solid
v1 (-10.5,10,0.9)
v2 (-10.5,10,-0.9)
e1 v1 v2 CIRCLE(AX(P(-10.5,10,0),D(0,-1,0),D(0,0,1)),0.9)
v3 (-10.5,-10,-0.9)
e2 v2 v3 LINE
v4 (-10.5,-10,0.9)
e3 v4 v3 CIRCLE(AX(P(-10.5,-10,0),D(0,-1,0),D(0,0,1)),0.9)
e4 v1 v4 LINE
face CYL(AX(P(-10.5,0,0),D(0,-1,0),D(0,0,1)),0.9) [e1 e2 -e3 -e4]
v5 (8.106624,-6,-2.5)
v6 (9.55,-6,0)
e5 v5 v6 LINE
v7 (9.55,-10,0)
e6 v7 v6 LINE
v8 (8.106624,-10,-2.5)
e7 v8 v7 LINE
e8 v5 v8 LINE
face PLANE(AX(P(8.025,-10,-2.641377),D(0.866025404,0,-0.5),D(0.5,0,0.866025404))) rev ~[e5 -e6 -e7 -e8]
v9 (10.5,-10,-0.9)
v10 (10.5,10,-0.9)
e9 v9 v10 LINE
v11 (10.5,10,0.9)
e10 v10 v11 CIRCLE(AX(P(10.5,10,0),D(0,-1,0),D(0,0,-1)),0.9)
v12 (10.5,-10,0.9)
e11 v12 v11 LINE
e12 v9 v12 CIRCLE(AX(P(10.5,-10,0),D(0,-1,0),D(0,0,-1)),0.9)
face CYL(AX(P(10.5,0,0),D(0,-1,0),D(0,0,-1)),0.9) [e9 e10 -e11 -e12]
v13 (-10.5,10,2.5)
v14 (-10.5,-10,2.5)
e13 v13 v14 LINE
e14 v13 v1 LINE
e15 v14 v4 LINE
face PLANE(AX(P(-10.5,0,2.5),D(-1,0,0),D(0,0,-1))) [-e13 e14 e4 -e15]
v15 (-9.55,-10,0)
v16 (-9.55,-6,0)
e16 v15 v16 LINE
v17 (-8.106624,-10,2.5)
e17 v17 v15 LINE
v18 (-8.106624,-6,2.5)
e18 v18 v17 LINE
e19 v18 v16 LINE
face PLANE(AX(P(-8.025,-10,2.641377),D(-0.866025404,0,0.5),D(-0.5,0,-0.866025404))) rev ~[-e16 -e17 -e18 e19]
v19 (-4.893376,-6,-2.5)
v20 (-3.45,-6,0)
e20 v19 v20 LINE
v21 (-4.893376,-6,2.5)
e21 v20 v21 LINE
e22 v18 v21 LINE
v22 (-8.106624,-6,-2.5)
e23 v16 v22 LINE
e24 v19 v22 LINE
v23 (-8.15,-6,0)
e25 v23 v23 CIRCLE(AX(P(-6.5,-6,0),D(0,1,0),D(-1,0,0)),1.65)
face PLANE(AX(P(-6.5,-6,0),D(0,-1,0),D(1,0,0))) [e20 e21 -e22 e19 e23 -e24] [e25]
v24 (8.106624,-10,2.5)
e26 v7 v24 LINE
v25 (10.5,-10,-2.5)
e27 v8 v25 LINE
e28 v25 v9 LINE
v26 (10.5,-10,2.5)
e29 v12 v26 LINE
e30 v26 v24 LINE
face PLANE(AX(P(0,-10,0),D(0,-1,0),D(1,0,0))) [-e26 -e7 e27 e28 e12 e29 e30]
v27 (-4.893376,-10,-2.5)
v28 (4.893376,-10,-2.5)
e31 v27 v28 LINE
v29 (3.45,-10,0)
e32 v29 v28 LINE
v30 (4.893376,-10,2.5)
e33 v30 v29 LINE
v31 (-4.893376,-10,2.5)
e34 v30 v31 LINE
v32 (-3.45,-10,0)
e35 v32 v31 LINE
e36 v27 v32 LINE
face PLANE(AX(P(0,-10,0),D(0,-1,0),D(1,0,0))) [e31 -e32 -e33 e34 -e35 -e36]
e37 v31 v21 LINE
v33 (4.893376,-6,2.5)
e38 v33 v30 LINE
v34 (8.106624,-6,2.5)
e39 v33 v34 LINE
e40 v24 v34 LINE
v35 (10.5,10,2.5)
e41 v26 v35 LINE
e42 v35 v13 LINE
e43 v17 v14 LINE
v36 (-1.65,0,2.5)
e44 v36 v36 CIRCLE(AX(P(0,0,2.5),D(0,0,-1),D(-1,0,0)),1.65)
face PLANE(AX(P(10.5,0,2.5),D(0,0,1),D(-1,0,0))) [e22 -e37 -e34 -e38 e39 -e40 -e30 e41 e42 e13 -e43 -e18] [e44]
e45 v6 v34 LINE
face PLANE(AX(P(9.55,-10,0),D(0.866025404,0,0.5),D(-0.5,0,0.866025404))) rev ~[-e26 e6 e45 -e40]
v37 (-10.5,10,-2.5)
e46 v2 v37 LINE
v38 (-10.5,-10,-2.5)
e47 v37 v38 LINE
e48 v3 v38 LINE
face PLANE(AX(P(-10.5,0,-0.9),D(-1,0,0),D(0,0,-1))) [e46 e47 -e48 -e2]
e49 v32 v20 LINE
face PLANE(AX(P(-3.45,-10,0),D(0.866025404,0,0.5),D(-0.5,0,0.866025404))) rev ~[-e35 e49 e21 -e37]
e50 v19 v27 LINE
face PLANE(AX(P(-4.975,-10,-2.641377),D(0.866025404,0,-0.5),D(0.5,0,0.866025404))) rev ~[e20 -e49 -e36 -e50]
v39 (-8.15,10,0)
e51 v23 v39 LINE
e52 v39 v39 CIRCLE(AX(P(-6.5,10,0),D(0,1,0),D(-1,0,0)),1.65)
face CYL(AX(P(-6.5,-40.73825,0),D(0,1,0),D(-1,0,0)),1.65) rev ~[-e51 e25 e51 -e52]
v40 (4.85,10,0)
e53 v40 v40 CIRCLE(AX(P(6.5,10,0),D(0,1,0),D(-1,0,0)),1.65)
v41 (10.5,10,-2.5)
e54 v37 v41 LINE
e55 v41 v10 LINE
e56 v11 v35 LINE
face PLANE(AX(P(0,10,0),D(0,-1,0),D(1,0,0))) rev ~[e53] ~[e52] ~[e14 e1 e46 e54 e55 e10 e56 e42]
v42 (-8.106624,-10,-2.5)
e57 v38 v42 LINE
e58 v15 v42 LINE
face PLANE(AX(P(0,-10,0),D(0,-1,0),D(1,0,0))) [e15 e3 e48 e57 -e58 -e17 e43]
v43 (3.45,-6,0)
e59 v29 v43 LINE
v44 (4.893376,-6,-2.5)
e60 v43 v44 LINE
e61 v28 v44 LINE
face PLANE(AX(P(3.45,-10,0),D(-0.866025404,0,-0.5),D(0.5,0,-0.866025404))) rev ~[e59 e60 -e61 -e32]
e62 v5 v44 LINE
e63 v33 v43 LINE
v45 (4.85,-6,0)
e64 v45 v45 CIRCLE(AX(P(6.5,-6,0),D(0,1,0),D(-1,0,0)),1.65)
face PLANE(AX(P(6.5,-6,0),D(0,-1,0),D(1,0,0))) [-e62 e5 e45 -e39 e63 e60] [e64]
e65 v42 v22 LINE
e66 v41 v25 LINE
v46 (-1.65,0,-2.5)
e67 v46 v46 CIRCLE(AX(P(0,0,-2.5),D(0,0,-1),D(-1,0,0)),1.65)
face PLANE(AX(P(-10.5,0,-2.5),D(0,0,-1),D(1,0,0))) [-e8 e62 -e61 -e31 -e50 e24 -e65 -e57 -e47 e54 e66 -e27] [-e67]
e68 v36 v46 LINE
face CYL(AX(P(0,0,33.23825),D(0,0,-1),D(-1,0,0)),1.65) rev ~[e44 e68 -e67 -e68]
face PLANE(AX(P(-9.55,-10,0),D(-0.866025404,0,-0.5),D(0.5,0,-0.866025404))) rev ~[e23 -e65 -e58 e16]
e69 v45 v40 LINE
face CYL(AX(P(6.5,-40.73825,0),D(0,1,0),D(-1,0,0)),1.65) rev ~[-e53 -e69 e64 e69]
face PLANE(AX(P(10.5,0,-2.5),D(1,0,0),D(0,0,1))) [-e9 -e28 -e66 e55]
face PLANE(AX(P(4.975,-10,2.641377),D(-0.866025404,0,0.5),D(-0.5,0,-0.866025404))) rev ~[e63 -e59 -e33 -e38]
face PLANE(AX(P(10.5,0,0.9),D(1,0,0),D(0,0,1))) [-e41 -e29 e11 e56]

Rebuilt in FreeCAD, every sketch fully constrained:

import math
import FreeCAD as App
import Part
import Sketcher
from FreeCAD import Vector
Q = App.Units.Quantity

doc = App.newDocument("Part")
body = doc.addObject("PartDesign::Body", "Body")

# Sketch on XZ plane
sketch1 = doc.addObject("Sketcher::SketchObject", "Sketch")
body.addObject(sketch1)
sketch1.AttachmentSupport = (doc.XZ_Plane, [""])
sketch1.MapMode = "FlatFace"
sketch1.addGeometry(Part.LineSegment(Vector(10.5, 2.5, 0), Vector(-10.5, 2.5, 0)), False)
sketch1.addGeometry(Part.LineSegment(Vector(-10.5, 2.5, 0), Vector(-10.5, 0.9, 0)), False)
sketch1.addGeometry(Part.ArcOfCircle(Part.Circle(Vector(-10.5, 0, 0), Vector(0, 0, 1), 0.9), math.radians(90), math.radians(270)), False)
sketch1.addGeometry(Part.LineSegment(Vector(-10.5, -0.9, 0), Vector(-10.5, -2.5, 0)), False)
sketch1.addGeometry(Part.LineSegment(Vector(-10.5, -2.5, 0), Vector(10.5, -2.5, 0)), False)
sketch1.addGeometry(Part.LineSegment(Vector(10.5, -2.5, 0), Vector(10.5, -0.9, 0)), False)
sketch1.addGeometry(Part.ArcOfCircle(Part.Circle(Vector(10.5, 0, 0), Vector(0, 0, 1), 0.9), math.radians(-90), math.radians(90)), False)
sketch1.addGeometry(Part.LineSegment(Vector(10.5, 0.9, 0), Vector(10.5, 2.5, 0)), False)
sketch1.addConstraint(Sketcher.Constraint("Coincident", 0, 2, 1, 1))
sketch1.addConstraint(Sketcher.Constraint("Coincident", 1, 2, 2, 1))
sketch1.addConstraint(Sketcher.Constraint("Coincident", 2, 2, 3, 1))
sketch1.addConstraint(Sketcher.Constraint("Coincident", 3, 2, 4, 1))
sketch1.addConstraint(Sketcher.Constraint("Coincident", 4, 2, 5, 1))
sketch1.addConstraint(Sketcher.Constraint("Coincident", 5, 2, 6, 1))
sketch1.addConstraint(Sketcher.Constraint("Coincident", 6, 2, 7, 1))
sketch1.addConstraint(Sketcher.Constraint("Coincident", 7, 2, 0, 1))
sketch1.addConstraint(Sketcher.Constraint("Horizontal", 0))
sketch1.addConstraint(Sketcher.Constraint("Vertical", 1))
sketch1.addConstraint(Sketcher.Constraint("Vertical", 3))
sketch1.addConstraint(Sketcher.Constraint("Horizontal", 4))
sketch1.addConstraint(Sketcher.Constraint("Vertical", 5))
sketch1.addConstraint(Sketcher.Constraint("Vertical", 7))
sketch1.addConstraint(Sketcher.Constraint("Equal", 2, 6))
sketch1.addConstraint(Sketcher.Constraint("Symmetric", 2, 3, 6, 3, -1, 1))
sketch1.addConstraint(Sketcher.Constraint("Symmetric", 0, 2, 4, 2, -1, 1))
sketch1.addConstraint(Sketcher.Constraint("Symmetric", 2, 2, 5, 2, -2))
sketch1.addConstraint(Sketcher.Constraint("Vertical", 2, 3, 0, 2))
sketch1.addConstraint(Sketcher.Constraint("Vertical", 5, 2, 6, 2))
sketch1.addConstraint(Sketcher.Constraint("Radius", 2, Q("0.9 mm")))
sketch1.addConstraint(Sketcher.Constraint("DistanceX", 0, 2, 0, 1, Q("21 mm")))
sketch1.addConstraint(Sketcher.Constraint("DistanceY", 1, 2, 1, 1, Q("1.6 mm")))
pad1 = doc.addObject("PartDesign::Pad", "Pad")
body.addObject(pad1)
pad1.Profile = sketch1
pad1.Length = 20
pad1.Midplane = True

# Sketch on XY plane
sketch2 = doc.addObject("Sketcher::SketchObject", "Sketch001")
body.addObject(sketch2)
sketch2.AttachmentSupport = (doc.XY_Plane, [""])
sketch2.MapMode = "FlatFace"
sketch2.AttachmentOffset = App.Placement(Vector(0, 0, 2.5), App.Rotation())
sketch2.addGeometry(Part.Circle(Vector(0, 0, 0), Vector(0, 0, 1), 1.6), False)
sketch2.addConstraint(Sketcher.Constraint("Coincident", 0, 3, -1, 1))
sketch2.addConstraint(Sketcher.Constraint("Diameter", 0, Q("3.3 mm")))
doc.recompute()
hole = doc.addObject("PartDesign::Hole", "Hole")
body.addObject(hole)
hole.Profile = sketch2
hole.ThreadType = "None"
hole.Diameter = 3.3
hole.DepthType = "ThroughAll"

# Sketch on XZ plane
sketch3 = doc.addObject("Sketcher::SketchObject", "Sketch002")
body.addObject(sketch3)
sketch3.AttachmentSupport = (doc.XZ_Plane, [""])
sketch3.MapMode = "FlatFace"
sketch3.AttachmentOffset = App.Placement(Vector(0, 0, 10), App.Rotation())
sketch3.addGeometry(Part.Circle(Vector(-6.5, 0, 0), Vector(0, 0, 1), 1.6), False)
sketch3.addGeometry(Part.Circle(Vector(6.5, 0, 0), Vector(0, 0, 1), 1.6), False)
sketch3.addConstraint(Sketcher.Constraint("Equal", 0, 1))
sketch3.addConstraint(Sketcher.Constraint("Symmetric", 0, 3, 1, 3, -1, 1))
sketch3.addConstraint(Sketcher.Constraint("PointOnObject", 0, 3, -1))
sketch3.addConstraint(Sketcher.Constraint("Diameter", 0, Q("3.3 mm")))
sketch3.addConstraint(Sketcher.Constraint("DistanceX", 0, 3, 1, 3, Q("13 mm")))
doc.recompute()
hole2 = doc.addObject("PartDesign::Hole", "Hole001")
body.addObject(hole2)
hole2.Profile = sketch3
hole2.ThreadType = "None"
hole2.Diameter = 3.3
hole2.DepthType = "ThroughAll"

# Sketch on XZ plane
sketch4 = doc.addObject("Sketcher::SketchObject", "Sketch003")
body.addObject(sketch4)
sketch4.AttachmentSupport = (doc.XZ_Plane, [""])
sketch4.MapMode = "FlatFace"
sketch4.AttachmentOffset = App.Placement(Vector(0, 0, 10), App.Rotation())
sketch4.addGeometry(Part.LineSegment(Vector(-3.5, 0, 0), Vector(-5, 2.6, 0)), False)
sketch4.addGeometry(Part.LineSegment(Vector(-5, 2.6, 0), Vector(-8, 2.6, 0)), False)
sketch4.addGeometry(Part.LineSegment(Vector(-8, 2.6, 0), Vector(-9.6, 0, 0)), False)
sketch4.addGeometry(Part.LineSegment(Vector(-9.6, 0, 0), Vector(-8, -2.6, 0)), False)
sketch4.addGeometry(Part.LineSegment(Vector(-8, -2.6, 0), Vector(-5, -2.6, 0)), False)
sketch4.addGeometry(Part.LineSegment(Vector(-5, -2.6, 0), Vector(-3.5, 0, 0)), False)
sketch4.addGeometry(Part.LineSegment(Vector(5, 2.6, 0), Vector(3.5, 0, 0)), False)
sketch4.addGeometry(Part.LineSegment(Vector(3.5, 0, 0), Vector(5, -2.6, 0)), False)
sketch4.addGeometry(Part.LineSegment(Vector(5, -2.6, 0), Vector(8, -2.6, 0)), False)
sketch4.addGeometry(Part.LineSegment(Vector(8, -2.6, 0), Vector(9.6, 0, 0)), False)
sketch4.addGeometry(Part.LineSegment(Vector(9.6, 0, 0), Vector(8, 2.6, 0)), False)
sketch4.addGeometry(Part.LineSegment(Vector(8, 2.6, 0), Vector(5, 2.6, 0)), False)
sketch4.addConstraint(Sketcher.Constraint("Coincident", 0, 2, 1, 1))
sketch4.addConstraint(Sketcher.Constraint("Coincident", 1, 2, 2, 1))
sketch4.addConstraint(Sketcher.Constraint("Coincident", 2, 2, 3, 1))
sketch4.addConstraint(Sketcher.Constraint("Coincident", 3, 2, 4, 1))
sketch4.addConstraint(Sketcher.Constraint("Coincident", 4, 2, 5, 1))
sketch4.addConstraint(Sketcher.Constraint("Coincident", 5, 2, 0, 1))
sketch4.addConstraint(Sketcher.Constraint("Coincident", 6, 2, 7, 1))
sketch4.addConstraint(Sketcher.Constraint("Coincident", 7, 2, 8, 1))
sketch4.addConstraint(Sketcher.Constraint("Coincident", 8, 2, 9, 1))
sketch4.addConstraint(Sketcher.Constraint("Coincident", 9, 2, 10, 1))
sketch4.addConstraint(Sketcher.Constraint("Coincident", 10, 2, 11, 1))
sketch4.addConstraint(Sketcher.Constraint("Coincident", 11, 2, 6, 1))
sketch4.addConstraint(Sketcher.Constraint("Horizontal", 1))
sketch4.addConstraint(Sketcher.Constraint("Horizontal", 4))
sketch4.addConstraint(Sketcher.Constraint("Horizontal", 8))
sketch4.addConstraint(Sketcher.Constraint("Horizontal", 11))
sketch4.addConstraint(Sketcher.Constraint("Symmetric", 5, 2, 6, 2, -1, 1))
sketch4.addConstraint(Sketcher.Constraint("Symmetric", 0, 2, 7, 2, -1, 1))
sketch4.addConstraint(Sketcher.Constraint("Symmetric", 2, 2, 9, 2, -1, 1))
sketch4.addConstraint(Sketcher.Constraint("Symmetric", 3, 2, 10, 2, -1, 1))
sketch4.addConstraint(Sketcher.Constraint("Symmetric", 4, 2, 7, 2, -2))
sketch4.addConstraint(Sketcher.Constraint("PointOnObject", 2, 2, -1))
sketch4.addConstraint(Sketcher.Constraint("PointOnObject", 5, 2, -1))
sketch4.addConstraint(Sketcher.Constraint("Parallel", 0, 3))
sketch4.addConstraint(Sketcher.Constraint("Parallel", 2, 5))
sketch4.addConstraint(Sketcher.Constraint("Parallel", 5, 6))
sketch4.addConstraint(Sketcher.Constraint("Parallel", 6, 9))
sketch4.addConstraint(Sketcher.Constraint("Angle", 0, Q("120 deg")))
sketch4.addConstraint(Sketcher.Constraint("DistanceX", 3, 2, 7, 2, Q("13 mm")))
sketch4.addConstraint(Sketcher.Constraint("DistanceX", 1, 2, 1, 1, Q("3.05 mm")))
sketch4.addConstraint(Sketcher.Constraint("DistanceX", 2, 2, 5, 2, Q("6.1 mm")))
pocket1 = doc.addObject("PartDesign::Pocket", "Pocket")
body.addObject(pocket1)
pocket1.Profile = sketch4
pocket1.Length = 4

doc.recompute()
